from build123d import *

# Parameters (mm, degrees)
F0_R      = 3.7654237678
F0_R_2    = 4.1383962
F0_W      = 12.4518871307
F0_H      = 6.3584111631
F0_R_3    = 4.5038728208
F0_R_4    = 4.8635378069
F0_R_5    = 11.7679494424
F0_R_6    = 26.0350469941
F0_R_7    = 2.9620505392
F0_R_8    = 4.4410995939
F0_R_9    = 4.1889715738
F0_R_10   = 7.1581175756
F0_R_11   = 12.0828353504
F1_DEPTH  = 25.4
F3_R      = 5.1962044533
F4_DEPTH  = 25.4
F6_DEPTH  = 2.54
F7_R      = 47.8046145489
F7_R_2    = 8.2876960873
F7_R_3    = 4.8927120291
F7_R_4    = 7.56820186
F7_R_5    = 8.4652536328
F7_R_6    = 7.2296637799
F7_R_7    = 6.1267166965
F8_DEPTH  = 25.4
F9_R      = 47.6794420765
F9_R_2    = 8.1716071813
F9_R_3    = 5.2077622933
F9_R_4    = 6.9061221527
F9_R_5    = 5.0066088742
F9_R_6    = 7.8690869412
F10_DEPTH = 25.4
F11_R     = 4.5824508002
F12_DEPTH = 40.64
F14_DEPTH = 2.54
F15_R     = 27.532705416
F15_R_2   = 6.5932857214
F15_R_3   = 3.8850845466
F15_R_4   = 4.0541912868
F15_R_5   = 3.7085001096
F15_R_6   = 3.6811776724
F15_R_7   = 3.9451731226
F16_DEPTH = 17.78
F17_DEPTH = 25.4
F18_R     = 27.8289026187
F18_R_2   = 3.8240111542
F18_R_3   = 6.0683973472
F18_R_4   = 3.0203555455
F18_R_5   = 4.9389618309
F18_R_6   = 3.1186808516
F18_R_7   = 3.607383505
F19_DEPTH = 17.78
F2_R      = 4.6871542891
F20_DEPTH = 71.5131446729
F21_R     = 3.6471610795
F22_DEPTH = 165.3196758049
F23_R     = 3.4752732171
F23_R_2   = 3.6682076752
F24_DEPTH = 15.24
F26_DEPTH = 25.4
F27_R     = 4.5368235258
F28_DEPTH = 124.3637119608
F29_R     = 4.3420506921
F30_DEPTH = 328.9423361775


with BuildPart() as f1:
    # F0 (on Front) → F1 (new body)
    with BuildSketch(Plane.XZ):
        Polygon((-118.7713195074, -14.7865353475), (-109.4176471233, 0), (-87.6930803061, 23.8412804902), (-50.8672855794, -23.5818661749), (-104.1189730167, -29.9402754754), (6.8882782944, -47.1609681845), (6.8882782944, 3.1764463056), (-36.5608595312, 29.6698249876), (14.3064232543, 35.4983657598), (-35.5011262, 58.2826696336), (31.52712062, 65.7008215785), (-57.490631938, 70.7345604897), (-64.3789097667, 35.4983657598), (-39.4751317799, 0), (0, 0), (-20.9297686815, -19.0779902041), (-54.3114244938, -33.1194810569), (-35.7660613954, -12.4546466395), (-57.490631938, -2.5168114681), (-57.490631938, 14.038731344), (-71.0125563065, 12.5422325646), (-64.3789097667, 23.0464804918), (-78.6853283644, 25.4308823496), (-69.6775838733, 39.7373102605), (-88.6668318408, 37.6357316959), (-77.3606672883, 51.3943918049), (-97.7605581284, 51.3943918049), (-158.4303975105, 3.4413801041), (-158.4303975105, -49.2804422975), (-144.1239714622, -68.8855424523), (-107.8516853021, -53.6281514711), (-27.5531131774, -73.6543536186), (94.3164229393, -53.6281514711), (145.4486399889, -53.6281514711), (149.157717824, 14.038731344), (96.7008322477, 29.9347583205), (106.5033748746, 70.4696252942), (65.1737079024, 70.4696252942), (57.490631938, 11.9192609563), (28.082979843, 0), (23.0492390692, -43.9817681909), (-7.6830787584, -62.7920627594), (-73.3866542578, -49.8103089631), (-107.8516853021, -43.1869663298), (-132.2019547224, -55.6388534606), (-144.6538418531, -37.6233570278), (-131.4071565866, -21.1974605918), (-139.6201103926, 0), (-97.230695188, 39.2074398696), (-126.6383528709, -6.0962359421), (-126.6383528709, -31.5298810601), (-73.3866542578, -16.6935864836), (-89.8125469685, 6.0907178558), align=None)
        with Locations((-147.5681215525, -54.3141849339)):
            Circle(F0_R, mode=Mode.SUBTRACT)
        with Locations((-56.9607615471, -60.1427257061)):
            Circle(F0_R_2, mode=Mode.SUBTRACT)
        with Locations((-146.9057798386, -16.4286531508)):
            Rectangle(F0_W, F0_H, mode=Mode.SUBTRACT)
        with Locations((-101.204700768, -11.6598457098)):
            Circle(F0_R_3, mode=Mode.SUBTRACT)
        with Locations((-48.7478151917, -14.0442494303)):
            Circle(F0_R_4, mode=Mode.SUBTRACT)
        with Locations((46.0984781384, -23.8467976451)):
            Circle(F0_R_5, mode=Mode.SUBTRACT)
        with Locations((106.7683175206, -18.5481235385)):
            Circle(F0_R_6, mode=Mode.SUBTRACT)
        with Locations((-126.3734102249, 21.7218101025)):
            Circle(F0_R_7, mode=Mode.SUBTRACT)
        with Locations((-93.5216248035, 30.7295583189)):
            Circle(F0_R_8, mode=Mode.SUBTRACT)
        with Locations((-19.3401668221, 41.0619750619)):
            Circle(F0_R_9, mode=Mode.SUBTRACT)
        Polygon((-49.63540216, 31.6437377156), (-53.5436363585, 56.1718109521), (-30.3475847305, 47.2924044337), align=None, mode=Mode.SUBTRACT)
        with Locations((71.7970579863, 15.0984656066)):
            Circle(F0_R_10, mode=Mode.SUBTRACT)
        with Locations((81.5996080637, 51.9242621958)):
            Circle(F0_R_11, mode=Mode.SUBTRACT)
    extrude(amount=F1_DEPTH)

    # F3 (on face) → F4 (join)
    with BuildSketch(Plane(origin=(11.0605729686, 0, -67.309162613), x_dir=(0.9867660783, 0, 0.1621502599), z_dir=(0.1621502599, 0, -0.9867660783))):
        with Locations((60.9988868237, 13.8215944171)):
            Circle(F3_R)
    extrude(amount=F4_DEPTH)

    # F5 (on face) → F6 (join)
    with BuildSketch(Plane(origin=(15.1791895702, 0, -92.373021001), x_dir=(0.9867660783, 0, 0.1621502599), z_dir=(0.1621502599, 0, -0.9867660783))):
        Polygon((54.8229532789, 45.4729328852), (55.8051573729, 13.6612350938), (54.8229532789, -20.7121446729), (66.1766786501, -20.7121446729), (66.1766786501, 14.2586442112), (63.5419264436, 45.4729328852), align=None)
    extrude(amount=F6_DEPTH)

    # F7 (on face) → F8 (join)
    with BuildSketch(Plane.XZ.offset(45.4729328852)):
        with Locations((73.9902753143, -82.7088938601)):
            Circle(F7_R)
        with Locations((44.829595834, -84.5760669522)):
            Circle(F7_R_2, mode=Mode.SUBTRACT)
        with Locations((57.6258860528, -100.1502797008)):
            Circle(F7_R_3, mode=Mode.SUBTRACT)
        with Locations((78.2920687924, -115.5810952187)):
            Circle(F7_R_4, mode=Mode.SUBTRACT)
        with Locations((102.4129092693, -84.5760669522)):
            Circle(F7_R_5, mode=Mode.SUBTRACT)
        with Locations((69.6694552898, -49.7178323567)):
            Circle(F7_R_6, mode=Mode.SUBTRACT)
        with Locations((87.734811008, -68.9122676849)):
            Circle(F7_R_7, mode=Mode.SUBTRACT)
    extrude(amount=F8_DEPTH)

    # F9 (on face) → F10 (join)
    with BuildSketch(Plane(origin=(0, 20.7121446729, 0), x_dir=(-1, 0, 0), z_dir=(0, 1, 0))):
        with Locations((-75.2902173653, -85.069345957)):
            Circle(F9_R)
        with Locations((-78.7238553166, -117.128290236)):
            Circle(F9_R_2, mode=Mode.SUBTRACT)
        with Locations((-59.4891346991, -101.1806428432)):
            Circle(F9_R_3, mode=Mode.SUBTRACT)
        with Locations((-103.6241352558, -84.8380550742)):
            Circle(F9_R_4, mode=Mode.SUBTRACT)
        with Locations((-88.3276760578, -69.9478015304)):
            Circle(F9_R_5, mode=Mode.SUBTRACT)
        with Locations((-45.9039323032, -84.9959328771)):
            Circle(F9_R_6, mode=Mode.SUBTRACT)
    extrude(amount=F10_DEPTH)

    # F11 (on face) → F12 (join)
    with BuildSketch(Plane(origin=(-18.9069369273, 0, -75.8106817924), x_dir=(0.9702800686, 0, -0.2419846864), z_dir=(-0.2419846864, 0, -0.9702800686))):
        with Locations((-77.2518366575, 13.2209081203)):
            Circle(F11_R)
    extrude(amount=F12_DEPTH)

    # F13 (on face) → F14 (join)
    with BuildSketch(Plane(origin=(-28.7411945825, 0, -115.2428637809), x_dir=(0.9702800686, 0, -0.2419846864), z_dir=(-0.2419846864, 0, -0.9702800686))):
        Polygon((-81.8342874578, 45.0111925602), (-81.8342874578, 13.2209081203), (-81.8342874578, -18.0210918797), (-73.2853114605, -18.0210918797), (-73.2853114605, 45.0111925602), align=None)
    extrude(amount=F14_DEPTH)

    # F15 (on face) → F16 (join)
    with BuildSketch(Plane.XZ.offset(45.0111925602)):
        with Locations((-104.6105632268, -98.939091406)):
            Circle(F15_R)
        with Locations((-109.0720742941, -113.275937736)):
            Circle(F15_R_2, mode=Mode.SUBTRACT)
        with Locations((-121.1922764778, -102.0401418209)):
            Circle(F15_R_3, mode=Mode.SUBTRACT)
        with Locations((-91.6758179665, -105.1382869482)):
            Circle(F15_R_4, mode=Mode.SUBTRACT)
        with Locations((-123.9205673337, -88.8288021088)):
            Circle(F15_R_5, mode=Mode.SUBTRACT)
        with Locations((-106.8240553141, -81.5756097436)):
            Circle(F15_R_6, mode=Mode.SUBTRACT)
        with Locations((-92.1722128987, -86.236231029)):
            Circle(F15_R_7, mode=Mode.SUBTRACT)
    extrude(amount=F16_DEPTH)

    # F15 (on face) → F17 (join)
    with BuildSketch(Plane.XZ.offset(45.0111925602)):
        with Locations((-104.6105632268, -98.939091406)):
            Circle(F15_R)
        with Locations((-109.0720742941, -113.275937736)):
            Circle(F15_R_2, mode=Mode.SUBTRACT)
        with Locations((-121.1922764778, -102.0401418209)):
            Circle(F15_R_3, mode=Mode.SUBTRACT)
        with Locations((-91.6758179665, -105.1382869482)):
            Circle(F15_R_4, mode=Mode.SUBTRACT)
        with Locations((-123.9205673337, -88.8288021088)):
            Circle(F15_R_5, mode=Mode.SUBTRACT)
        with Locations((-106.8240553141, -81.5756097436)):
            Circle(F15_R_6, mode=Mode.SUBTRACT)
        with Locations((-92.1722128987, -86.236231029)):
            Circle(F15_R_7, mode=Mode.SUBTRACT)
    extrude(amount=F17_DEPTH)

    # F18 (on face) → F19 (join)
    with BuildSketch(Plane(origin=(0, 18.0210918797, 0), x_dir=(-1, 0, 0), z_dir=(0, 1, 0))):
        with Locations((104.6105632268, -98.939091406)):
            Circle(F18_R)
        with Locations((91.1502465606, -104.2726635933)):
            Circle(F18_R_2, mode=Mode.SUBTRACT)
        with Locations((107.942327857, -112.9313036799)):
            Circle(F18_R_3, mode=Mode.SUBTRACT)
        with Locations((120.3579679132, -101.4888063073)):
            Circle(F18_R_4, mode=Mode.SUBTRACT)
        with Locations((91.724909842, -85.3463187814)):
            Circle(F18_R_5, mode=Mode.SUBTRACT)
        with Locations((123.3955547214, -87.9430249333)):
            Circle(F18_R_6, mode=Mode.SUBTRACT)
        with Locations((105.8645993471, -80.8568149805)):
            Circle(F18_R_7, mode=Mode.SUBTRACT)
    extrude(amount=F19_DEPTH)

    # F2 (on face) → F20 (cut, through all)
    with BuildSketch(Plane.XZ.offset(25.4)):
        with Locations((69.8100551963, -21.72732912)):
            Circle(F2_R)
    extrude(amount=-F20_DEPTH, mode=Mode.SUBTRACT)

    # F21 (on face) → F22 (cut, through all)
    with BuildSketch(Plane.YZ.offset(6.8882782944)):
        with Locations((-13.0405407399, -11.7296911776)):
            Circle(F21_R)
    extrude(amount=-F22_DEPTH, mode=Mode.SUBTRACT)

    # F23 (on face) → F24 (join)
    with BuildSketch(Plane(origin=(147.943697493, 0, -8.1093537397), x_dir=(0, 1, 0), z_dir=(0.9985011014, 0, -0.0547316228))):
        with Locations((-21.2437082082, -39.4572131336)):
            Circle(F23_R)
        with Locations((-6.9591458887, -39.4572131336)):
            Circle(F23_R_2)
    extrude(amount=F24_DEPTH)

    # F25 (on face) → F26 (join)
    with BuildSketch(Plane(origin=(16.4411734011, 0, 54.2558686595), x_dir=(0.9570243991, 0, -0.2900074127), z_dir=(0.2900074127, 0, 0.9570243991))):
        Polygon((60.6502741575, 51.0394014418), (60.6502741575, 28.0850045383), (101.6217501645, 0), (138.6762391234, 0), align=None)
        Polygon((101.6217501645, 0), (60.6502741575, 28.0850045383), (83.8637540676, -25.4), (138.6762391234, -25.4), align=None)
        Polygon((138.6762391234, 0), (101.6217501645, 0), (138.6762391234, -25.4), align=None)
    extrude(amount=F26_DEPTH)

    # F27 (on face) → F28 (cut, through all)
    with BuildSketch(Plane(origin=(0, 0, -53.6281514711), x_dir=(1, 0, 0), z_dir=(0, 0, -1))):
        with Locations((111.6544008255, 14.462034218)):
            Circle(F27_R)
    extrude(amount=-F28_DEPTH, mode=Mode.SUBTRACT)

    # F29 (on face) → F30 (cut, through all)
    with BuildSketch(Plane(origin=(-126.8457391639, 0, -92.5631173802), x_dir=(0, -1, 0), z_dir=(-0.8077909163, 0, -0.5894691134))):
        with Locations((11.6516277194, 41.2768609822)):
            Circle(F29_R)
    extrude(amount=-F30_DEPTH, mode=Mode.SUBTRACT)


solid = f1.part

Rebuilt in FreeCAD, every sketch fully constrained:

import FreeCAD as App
import Part
import Sketcher

V = App.Vector
Q = App.Units.Quantity


def add_polygon(sketch, points):
    """Adds a closed chain of lines whose ends are joined by coincident constraints."""
    first, n = sketch.GeometryCount, len(points)
    for a, b in zip(points, points[1:] + points[:1]):
        sketch.addGeometry(Part.LineSegment(App.Vector(*a, 0), App.Vector(*b, 0)), False)
    for i in range(n):
        sketch.addConstraint(Sketcher.Constraint("Coincident", first + i, 2, first + (i + 1) % n, 1))

doc = App.newDocument("Part")
body = doc.addObject("PartDesign::Body", "Body")

# Sketch on XZ plane
sketch1 = body.newObject("Sketcher::SketchObject", "Sketch")
sketch1.AttachmentSupport = (doc.getObject("XZ_Plane"), [""])
sketch1.MapMode = "FlatFace"
add_polygon(sketch1, [(-118.8, -14.8), (-109.4, 0), (-87.7, 23.8), (-50.9, -23.6), (-104.1, -29.9), (6.9, -47.2), (6.9, 3.2), (-36.6, 29.7), (14.3, 35.5), (-35.5, 58.3), (31.5, 65.7), (-57.5, 70.7), (-64.4, 35.5), (-39.5, 0), (0, 0), (-20.9, -19.1), (-54.3, -33.1), (-35.8, -12.5), (-57.5, -2.5), (-57.5, 14), (-71, 12.5), (-64.4, 23), (-78.7, 25.4), (-69.7, 39.7), (-88.7, 37.6), (-77.4, 51.4), (-97.8, 51.4), (-158.4, 3.4), (-158.4, -49.3), (-144.1, -68.9), (-107.9, -53.6), (-27.6, -73.7), (94.3, -53.6), (145.4, -53.6), (149.2, 14), (96.7, 29.9), (106.5, 70.5), (65.2, 70.5), (57.5, 11.9), (28.1, 0), (23, -44), (-7.7, -62.8), (-73.4, -49.8), (-107.9, -43.2), (-132.2, -55.6), (-144.7, -37.6), (-131.4, -21.2), (-139.6, 0), (-97.2, 39.2), (-126.6, -6.1), (-126.6, -31.5), (-73.4, -16.7), (-89.8, 6.1)])  # lines 0-52
sketch1.addGeometry(Part.Circle(V(-147.6, -54.3, 0), V(0, 0, 1), 3.8), False)  # 53
sketch1.addGeometry(Part.Circle(V(-57, -60.1, 0), V(0, 0, 1), 4.1), False)  # 54
add_polygon(sketch1, [(-140.7, -19.6), (-153.1, -19.6), (-153.1, -13.2), (-140.7, -13.2)])  # lines 55-58
sketch1.addGeometry(Part.Circle(V(-101.2, -11.7, 0), V(0, 0, 1), 4.5), False)  # 59
sketch1.addGeometry(Part.Circle(V(-48.7, -14, 0), V(0, 0, 1), 4.9), False)  # 60
sketch1.addGeometry(Part.Circle(V(46.1, -23.8, 0), V(0, 0, 1), 11.8), False)  # 61
sketch1.addGeometry(Part.Circle(V(106.8, -18.5, 0), V(0, 0, 1), 26), False)  # 62
sketch1.addGeometry(Part.Circle(V(-126.4, 21.7, 0), V(0, 0, 1), 3), False)  # 63
sketch1.addGeometry(Part.Circle(V(-93.5, 30.7, 0), V(0, 0, 1), 4.4), False)  # 64
add_polygon(sketch1, [(-30.3, 47.3), (-49.6, 31.6), (-53.5, 56.2)])  # lines 65-67
sketch1.addGeometry(Part.Circle(V(-19.3, 41.1, 0), V(0, 0, 1), 4.2), False)  # 68
sketch1.addGeometry(Part.Circle(V(71.8, 15.1, 0), V(0, 0, 1), 7.2), False)  # 69
sketch1.addGeometry(Part.Circle(V(81.6, 51.9, 0), V(0, 0, 1), 12.1), False)  # 70
sketch1.addConstraint(Sketcher.Constraint("Vertical", 5))
sketch1.addConstraint(Sketcher.Constraint("Horizontal", 13))
sketch1.addConstraint(Sketcher.Constraint("Vertical", 18))
sketch1.addConstraint(Sketcher.Constraint("Horizontal", 25))
sketch1.addConstraint(Sketcher.Constraint("Vertical", 27))
sketch1.addConstraint(Sketcher.Constraint("Horizontal", 32))
sketch1.addConstraint(Sketcher.Constraint("Horizontal", 36))
sketch1.addConstraint(Sketcher.Constraint("Vertical", 49))
sketch1.addConstraint(Sketcher.Constraint("Horizontal", 55))
sketch1.addConstraint(Sketcher.Constraint("Vertical", 56))
sketch1.addConstraint(Sketcher.Constraint("Horizontal", 57))
sketch1.addConstraint(Sketcher.Constraint("Vertical", 58))
sketch1.addConstraint(Sketcher.Constraint("Coincident", 13, 2, -1, 1))
sketch1.addConstraint(Sketcher.Constraint("PointOnObject", 0, 2, -1))
sketch1.addConstraint(Sketcher.Constraint("PointOnObject", 38, 2, -1))
sketch1.addConstraint(Sketcher.Constraint("PointOnObject", 46, 2, -1))
sketch1.addConstraint(Sketcher.Constraint("Parallel", 8, 17))
sketch1.addConstraint(Sketcher.Constraint("Parallel", 9, 19))
sketch1.addConstraint(Sketcher.Constraint("Parallel", 19, 23))
sketch1.addConstraint(Sketcher.Constraint("Parallel", 15, 29))
sketch1.addConstraint(Sketcher.Constraint("Perpendicular", 51, 52))
sketch1.addConstraint(Sketcher.Constraint("Horizontal", 7, 2, 11, 2))
sketch1.addConstraint(Sketcher.Constraint("Horizontal", 29, 2, 31, 2))
sketch1.addConstraint(Sketcher.Constraint("Horizontal", 18, 2, 33, 2))
sketch1.addConstraint(Sketcher.Constraint("Vertical", 10, 2, 17, 2))
sketch1.addConstraint(Sketcher.Constraint("Vertical", 11, 2, 20, 2))
sketch1.addConstraint(Sketcher.Constraint("Vertical", 29, 2, 42, 2))
sketch1.addConstraint(Sketcher.Constraint("Vertical", 41, 2, 50, 2))
sketch1.addConstraint(Sketcher.Constraint("Equal", 65, 66))
sketch1.addConstraint(Sketcher.Constraint("Equal", 66, 67))
sketch1.addConstraint(Sketcher.Constraint("Diameter", 61, Q("23.535899 mm")))
sketch1.addConstraint(Sketcher.Constraint("Diameter", 63, Q("5.924101 mm")))
sketch1.addConstraint(Sketcher.Constraint("Diameter", 64, Q("8.882199 mm")))
sketch1.addConstraint(Sketcher.Constraint("Diameter", 70, Q("24.165671 mm")))
sketch1.addConstraint(Sketcher.Constraint("Diameter", 53, Q("7.530848 mm")))
sketch1.addConstraint(Sketcher.Constraint("Diameter", 54, Q("8.276792 mm")))
sketch1.addConstraint(Sketcher.Constraint("Diameter", 59, Q("9.007746 mm")))
sketch1.addConstraint(Sketcher.Constraint("Diameter", 60, Q("9.727076 mm")))
sketch1.addConstraint(Sketcher.Constraint("Diameter", 62, Q("52.070094 mm")))
sketch1.addConstraint(Sketcher.Constraint("Diameter", 68, Q("8.377943 mm")))
sketch1.addConstraint(Sketcher.Constraint("Diameter", 69, Q("14.316235 mm")))
sketch1.addConstraint(Sketcher.Constraint("DistanceY", -1, 1, 47, 2, Q("1.5436 in")))
sketch1.addConstraint(Sketcher.Constraint("Distance", 35, Q("41.703301 mm")))
sketch1.addConstraint(Sketcher.Constraint("DistanceX", 13, 1, 13, 2, Q("39.475132 mm")))
sketch1.addConstraint(Sketcher.Constraint("DistanceX", 25, 2, 25, 1, Q("20.399891 mm")))
sketch1.addConstraint(Sketcher.Constraint("DistanceY", 56, 1, 56, 2, Q("6.358411 mm")))
sketch1.addConstraint(Sketcher.Constraint("DistanceX", 59, 3, -1, 1, Q("101.204701 mm")))
sketch1.addConstraint(Sketcher.Constraint("Distance", 0, Q("17.496652 mm")))
sketch1.addConstraint(Sketcher.Constraint("Distance", 3, Q("53.62995 mm")))
sketch1.addConstraint(Sketcher.Constraint("Distance", 7, Q("51.200121 mm")))
sketch1.addConstraint(Sketcher.Constraint("Distance", 9, Q("67.437488 mm")))
sketch1.addConstraint(Sketcher.Constraint("Distance", 10, Q("89.159962 mm")))
sketch1.addConstraint(Sketcher.Constraint("Distance", 28, Q("24.270018 mm")))
sketch1.addConstraint(Sketcher.Constraint("Distance", 29, Q("39.350562 mm")))
sketch1.addConstraint(Sketcher.Constraint("Distance", 30, Q("82.758138 mm")))
sketch1.addConstraint(Sketcher.Constraint("Distance", 31, Q("123.503978 mm")))
sketch1.addConstraint(Sketcher.Constraint("Distance", 33, Q("67.768461 mm")))
sketch1.addConstraint(Sketcher.Constraint("Distance", 39, Q("44.268888 mm")))
sketch1.addConstraint(Sketcher.Constraint("Distance", 41, Q("66.973769 mm")))
sketch1.addConstraint(Sketcher.Constraint("Distance", 45, Q("21.101771 mm")))
sketch1.addConstraint(Sketcher.Constraint("Distance", 48, Q("54.011419 mm")))
sketch1.addConstraint(Sketcher.Constraint("DistanceX", 32, 1, 32, 2, Q("51.132217 mm")))
sketch1.addConstraint(Sketcher.Constraint("DistanceX", 36, 2, 36, 1, Q("41.329667 mm")))
sketch1.addConstraint(Sketcher.Constraint("DistanceX", 55, 2, 55, 1, Q("12.451887 mm")))
sketch1.addConstraint(Sketcher.Constraint("DistanceY", 5, 1, 5, 2, Q("50.337414 mm")))
sketch1.addConstraint(Sketcher.Constraint("DistanceY", 18, 1, 18, 2, Q("16.555543 mm")))
sketch1.addConstraint(Sketcher.Constraint("DistanceY", 27, 2, 27, 1, Q("52.721822 mm")))
sketch1.addConstraint(Sketcher.Constraint("DistanceY", 49, 2, 49, 1, Q("25.433645 mm")))
sketch1.addConstraint(Sketcher.Constraint("DistanceX", 53, 3, -1, 1, Q("147.568122 mm")))
sketch1.addConstraint(Sketcher.Constraint("DistanceX", 54, 3, -1, 1, Q("56.960762 mm")))
sketch1.addConstraint(Sketcher.Constraint("DistanceY", 60, 3, -1, 1, Q("14.044249 mm")))
sketch1.addConstraint(Sketcher.Constraint("DistanceX", -1, 1, 61, 3, Q("46.098478 mm")))
sketch1.addConstraint(Sketcher.Constraint("DistanceX", 63, 3, -1, 1, Q("126.37341 mm")))
sketch1.addConstraint(Sketcher.Constraint("DistanceY", -1, 1, 63, 3, Q("21.72181 mm")))
sketch1.addConstraint(Sketcher.Constraint("DistanceY", -1, 1, 64, 3, Q("30.729558 mm")))
sketch1.addConstraint(Sketcher.Constraint("DistanceX", -1, 1, 70, 3, Q("81.599608 mm")))
sketch1.addConstraint(Sketcher.Constraint("DistanceX", 1, 2, -1, 1, Q("87.69308 mm")))
sketch1.addConstraint(Sketcher.Constraint("DistanceY", -1, 1, 1, 2, Q("23.84128 mm")))
sketch1.addConstraint(Sketcher.Constraint("DistanceX", -1, 1, 4, 2, Q("6.888278 mm")))
sketch1.addConstraint(Sketcher.Constraint("DistanceY", 4, 2, -1, 1, Q("47.160968 mm")))
sketch1.addConstraint(Sketcher.Constraint("DistanceX", 6, 2, -1, 1, Q("36.56086 mm")))
sketch1.addConstraint(Sketcher.Constraint("DistanceY", -1, 1, 8, 2, Q("58.28267 mm")))
sketch1.addConstraint(Sketcher.Constraint("DistanceX", -1, 1, 9, 2, Q("31.527121 mm")))
sketch1.addConstraint(Sketcher.Constraint("DistanceY", -1, 1, 9, 2, Q("65.700822 mm")))
sketch1.addConstraint(Sketcher.Constraint("DistanceX", 10, 2, -1, 1, Q("57.490632 mm")))
sketch1.addConstraint(Sketcher.Constraint("DistanceX", 11, 2, -1, 1, Q("64.37891 mm")))
sketch1.addConstraint(Sketcher.Constraint("DistanceX", 14, 2, -1, 1, Q("20.929769 mm")))
sketch1.addConstraint(Sketcher.Constraint("DistanceY", 14, 2, -1, 1, Q("19.07799 mm")))
sketch1.addConstraint(Sketcher.Constraint("DistanceY", 15, 2, -1, 1, Q("33.119481 mm")))
sketch1.addConstraint(Sketcher.Constraint("DistanceX", 16, 2, -1, 1, Q("35.766061 mm")))
sketch1.addConstraint(Sketcher.Constraint("DistanceY", 17, 2, -1, 1, Q("2.516811 mm")))
sketch1.addConstraint(Sketcher.Constraint("DistanceY", -1, 1, 20, 2, Q("23.04648 mm")))
sketch1.addConstraint(Sketcher.Constraint("DistanceX", 21, 2, -1, 1, Q("78.685328 mm")))
sketch1.addConstraint(Sketcher.Constraint("DistanceY", -1, 1, 22, 2, Q("39.73731 mm")))
sketch1.addConstraint(Sketcher.Constraint("DistanceX", 23, 2, -1, 1, Q("88.666832 mm")))
sketch1.addConstraint(Sketcher.Constraint("DistanceY", -1, 1, 23, 2, Q("37.635732 mm")))
sketch1.addConstraint(Sketcher.Constraint("DistanceY", -1, 1, 24, 2, Q("51.394392 mm")))
sketch1.addConstraint(Sketcher.Constraint("DistanceX", 25, 2, -1, 1, Q("97.760558 mm")))
sketch1.addConstraint(Sketcher.Constraint("DistanceY", -1, 1, 26, 2, Q("3.44138 mm")))
sketch1.addConstraint(Sketcher.Constraint("DistanceX", 28, 2, -1, 1, Q("144.123971 mm")))
sketch1.addConstraint(Sketcher.Constraint("DistanceY", 29, 2, -1, 1, Q("53.628151 mm")))
sketch1.addConstraint(Sketcher.Constraint("DistanceX", -1, 1, 32, 2, Q("145.44864 mm")))
sketch1.addConstraint(Sketcher.Constraint("DistanceY", -1, 1, 34, 2, Q("29.934758 mm")))
sketch1.addConstraint(Sketcher.Constraint("DistanceX", -1, 1, 37, 2, Q("57.490632 mm")))
sketch1.addConstraint(Sketcher.Constraint("DistanceY", -1, 1, 37, 2, Q("11.919261 mm")))
sketch1.addConstraint(Sketcher.Constraint("DistanceX", -1, 1, 38, 2, Q("28.08298 mm")))
sketch1.addConstraint(Sketcher.Constraint("DistanceX", -1, 1, 39, 2, Q("23.049239 mm")))
sketch1.addConstraint(Sketcher.Constraint("DistanceX", 40, 2, -1, 1, Q("7.683079 mm")))
sketch1.addConstraint(Sketcher.Constraint("DistanceY", 41, 2, -1, 1, Q("49.810309 mm")))
sketch1.addConstraint(Sketcher.Constraint("DistanceX", 44, 2, -1, 1, Q("144.653842 mm")))
sketch1.addConstraint(Sketcher.Constraint("DistanceY", 45, 2, -1, 1, Q("21.197461 mm")))
sketch1.addConstraint(Sketcher.Constraint("DistanceX", 46, 2, -1, 1, Q("139.62011 mm")))
sketch1.addConstraint(Sketcher.Constraint("DistanceY", 49, 2, -1, 1, Q("31.529881 mm")))
sketch1.addConstraint(Sketcher.Constraint("DistanceX", 52, 2, -1, 1, Q("118.77132 mm")))
sketch1.addConstraint(Sketcher.Constraint("DistanceY", 55, 2, -1, 1, Q("19.607859 mm")))
sketch1.addConstraint(Sketcher.Constraint("DistanceY", -1, 1, 66, 2, Q("56.171811 mm")))
sketch1.addConstraint(Sketcher.Constraint("Distance", 1, Q("32.254666 mm")))
sketch1.addConstraint(Sketcher.Constraint("Distance", 2, Q("60.042435 mm")))
sketch1.addConstraint(Sketcher.Constraint("Distance", 4, Q("112.335044 mm")))
sketch1.addConstraint(Sketcher.Constraint("Distance", 6, Q("50.889357 mm")))
sketch1.addConstraint(Sketcher.Constraint("Distance", 8, Q("54.771493 mm")))
sketch1.addConstraint(Sketcher.Constraint("Distance", 15, Q("36.214616 mm")))
sketch1.addConstraint(Sketcher.Constraint("Distance", 19, Q("13.604483 mm")))
sketch1.addConstraint(Sketcher.Constraint("Distance", 21, Q("14.503758 mm")))
sketch1.addConstraint(Sketcher.Constraint("Distance", 34, Q("54.812485 mm")))
sketch1.addConstraint(Sketcher.Constraint("Distance", 37, Q("59.052306 mm")))
sketch1.addConstraint(Sketcher.Constraint("Distance", 40, Q("36.031966 mm")))
sketch1.addConstraint(Sketcher.Constraint("Distance", 42, Q("35.095684 mm")))
sketch1.addConstraint(Sketcher.Constraint("Distance", 43, Q("27.349317 mm")))
sketch1.addConstraint(Sketcher.Constraint("Distance", 44, Q("21.899945 mm")))
sketch1.addConstraint(Sketcher.Constraint("Distance", 46, Q("22.732904 mm")))
sketch1.addConstraint(Sketcher.Constraint("Distance", 47, Q("57.741544 mm")))
sketch1.addConstraint(Sketcher.Constraint("Distance", 50, Q("55.279825 mm")))
sketch1.addConstraint(Sketcher.Constraint("Distance", 51, Q("28.087977 mm")))
sketch1.addConstraint(Sketcher.Constraint("Distance", 65, Q("24.837485 mm")))
sketch1.addConstraint(Sketcher.Constraint("DistanceY", 53, 3, -1, 1, Q("54.314185 mm")))
sketch1.addConstraint(Sketcher.Constraint("DistanceY", 54, 3, -1, 1, Q("60.142726 mm")))
sketch1.addConstraint(Sketcher.Constraint("DistanceY", 59, 3, -1, 1, Q("11.659846 mm")))
sketch1.addConstraint(Sketcher.Constraint("DistanceX", 60, 3, -1, 1, Q("48.747815 mm")))
sketch1.addConstraint(Sketcher.Constraint("DistanceY", 61, 3, -1, 1, Q("23.846798 mm")))
sketch1.addConstraint(Sketcher.Constraint("DistanceX", -1, 1, 62, 3, Q("106.768318 mm")))
sketch1.addConstraint(Sketcher.Constraint("DistanceY", 62, 3, -1, 1, Q("18.548124 mm")))
sketch1.addConstraint(Sketcher.Constraint("DistanceX", 64, 3, -1, 1, Q("93.521625 mm")))
sketch1.addConstraint(Sketcher.Constraint("DistanceX", 68, 3, -1, 1, Q("19.340167 mm")))
sketch1.addConstraint(Sketcher.Constraint("DistanceY", -1, 1, 68, 3, Q("41.061975 mm")))
sketch1.addConstraint(Sketcher.Constraint("DistanceX", -1, 1, 69, 3, Q("71.797058 mm")))
sketch1.addConstraint(Sketcher.Constraint("DistanceY", -1, 1, 69, 3, Q("15.098466 mm")))
sketch1.addConstraint(Sketcher.Constraint("DistanceY", -1, 1, 70, 3, Q("51.924262 mm")))
sketch1.addConstraint(Sketcher.Constraint("DistanceX", 2, 2, -1, 1, Q("50.867286 mm")))
sketch1.addConstraint(Sketcher.Constraint("DistanceX", 55, 2, -1, 1, Q("153.131723 mm")))
sketch1.addConstraint(Sketcher.Constraint("DistanceX", 65, 2, -1, 1, Q("49.635402 mm")))
sketch1.addConstraint(Sketcher.Constraint("DistanceY", -1, 1, 65, 2, Q("31.643738 mm")))
pad1 = body.newObject("PartDesign::Pad", "Pad")
pad1.Profile = sketch1
pad1.Length = Q("1 in")

# Sketch on an angled plane
sketch2 = body.newObject("Sketcher::SketchObject", "Sketch001")
sketch2.Placement = App.Placement(V(11.060573, 0, -67.309163), App.Rotation(V(0.986766078, 0, 0.16215026), V(0, -1, 0), V(0.16215026, 0, -0.986766078), "ZXY"))
sketch2.addGeometry(Part.Circle(V(61, 14, 0), V(0, 0, 1), 5), False)
sketch2.addConstraint(Sketcher.Constraint("Diameter", 0, Q("10.392409 mm")))
sketch2.addConstraint(Sketcher.Constraint("DistanceX", -1, 1, 0, 3, Q("60.998887 mm")))
sketch2.addConstraint(Sketcher.Constraint("DistanceY", -1, 1, 0, 3, Q("13.821594 mm")))
pad2 = body.newObject("PartDesign::Pad", "Pad001")
pad2.Profile = sketch2
pad2.Length = Q("1 in")

# Sketch on an angled plane
sketch3 = body.newObject("Sketcher::SketchObject", "Sketch002")
sketch3.Placement = App.Placement(V(15.17919, 0, -92.373021), App.Rotation(V(0.986766078, 0, 0.16215026), V(0, -1, 0), V(0.16215026, 0, -0.986766078), "ZXY"))
add_polygon(sketch3, [(55, 45), (56, 14), (55, -21), (66, -21), (66, 14), (64, 45)])  # lines 0-5
sketch3.addConstraint(Sketcher.Constraint("Horizontal", 2))
sketch3.addConstraint(Sketcher.Constraint("Vertical", 3))
sketch3.addConstraint(Sketcher.Constraint("Horizontal", 5))
sketch3.addConstraint(Sketcher.Constraint("Vertical", 1, 2, 5, 2))
sketch3.addConstraint(Sketcher.Constraint("DistanceY", 3, 1, 3, 2, Q("34.970789 mm")))
sketch3.addConstraint(Sketcher.Constraint("Distance", 1, Q("34.38741 mm")))
sketch3.addConstraint(Sketcher.Constraint("Distance", 4, Q("31.325289 mm")))
sketch3.addConstraint(Sketcher.Constraint("DistanceX", 2, 1, 2, 2, Q("11.353725 mm")))
sketch3.addConstraint(Sketcher.Constraint("DistanceX", 5, 2, 5, 1, Q("8.718973 mm")))
sketch3.addConstraint(Sketcher.Constraint("DistanceX", -1, 1, 2, 2, Q("66.176679 mm")))
sketch3.addConstraint(Sketcher.Constraint("DistanceY", 1, 2, 0, 2, Q("34.37338 mm")))
sketch3.addConstraint(Sketcher.Constraint("DistanceY", -1, 1, 0, 2, Q("13.661235 mm")))
pad3 = body.newObject("PartDesign::Pad", "Pad002")
pad3.Profile = sketch3
pad3.Length = Q("0.1 in")

# Sketch on XZ plane
sketch4 = body.newObject("Sketcher::SketchObject", "Sketch003")
sketch4.AttachmentSupport = (doc.getObject("XZ_Plane"), [""])
sketch4.MapMode = "FlatFace"
sketch4.AttachmentOffset = App.Placement(V(0, 0, 45.472933), App.Rotation())
sketch4.addGeometry(Part.Circle(V(74, -82.7, 0), V(0, 0, 1), 47.8), False)
sketch4.addGeometry(Part.Circle(V(44.8, -84.6, 0), V(0, 0, 1), 8.3), False)
sketch4.addGeometry(Part.Circle(V(57.6, -100.2, 0), V(0, 0, 1), 4.9), False)
sketch4.addGeometry(Part.Circle(V(78.3, -115.6, 0), V(0, 0, 1), 7.6), False)
sketch4.addGeometry(Part.Circle(V(102.4, -84.6, 0), V(0, 0, 1), 8.5), False)
sketch4.addGeometry(Part.Circle(V(69.7, -49.7, 0), V(0, 0, 1), 7.2), False)
sketch4.addGeometry(Part.Circle(V(87.7, -68.9, 0), V(0, 0, 1), 6.1), False)
sketch4.addConstraint(Sketcher.Constraint("Horizontal", 1, 3, 4, 3))
sketch4.addConstraint(Sketcher.Constraint("Diameter", 0, Q("95.609229 mm")))
sketch4.addConstraint(Sketcher.Constraint("Diameter", 1, Q("16.575392 mm")))
sketch4.addConstraint(Sketcher.Constraint("Diameter", 2, Q("9.785424 mm")))
sketch4.addConstraint(Sketcher.Constraint("Diameter", 3, Q("15.136404 mm")))
sketch4.addConstraint(Sketcher.Constraint("Diameter", 4, Q("16.930507 mm")))
sketch4.addConstraint(Sketcher.Constraint("Diameter", 5, Q("14.459328 mm")))
sketch4.addConstraint(Sketcher.Constraint("Diameter", 6, Q("12.253433 mm")))
sketch4.addConstraint(Sketcher.Constraint("DistanceY", 3, 3, 0, 3, Q("32.872201 mm")))
sketch4.addConstraint(Sketcher.Constraint("DistanceX", 6, 3, 4, 3, Q("14.678098 mm")))
sketch4.addConstraint(Sketcher.Constraint("DistanceY", 4, 3, 6, 3, Q("15.663799 mm")))
sketch4.addConstraint(Sketcher.Constraint("DistanceY", 2, 3, -1, 1, Q("100.15028 mm")))
sketch4.addConstraint(Sketcher.Constraint("DistanceX", -1, 1, 3, 3, Q("78.292069 mm")))
sketch4.addConstraint(Sketcher.Constraint("DistanceX", -1, 1, 4, 3, Q("102.412909 mm")))
sketch4.addConstraint(Sketcher.Constraint("DistanceX", 1, 3, 0, 3, Q("29.160679 mm")))
sketch4.addConstraint(Sketcher.Constraint("DistanceX", 1, 3, 2, 3, Q("12.79629 mm")))
sketch4.addConstraint(Sketcher.Constraint("DistanceY", 3, 3, 1, 3, Q("31.005028 mm")))
sketch4.addConstraint(Sketcher.Constraint("DistanceX", 5, 3, 0, 3, Q("4.32082 mm")))
sketch4.addConstraint(Sketcher.Constraint("DistanceY", 0, 3, 5, 3, Q("32.991062 mm")))
sketch4.addConstraint(Sketcher.Constraint("DistanceX", -1, 1, 0, 3, Q("73.990275 mm")))
sketch4.addConstraint(Sketcher.Constraint("DistanceY", 0, 3, -1, 1, Q("82.708894 mm")))
pad4 = body.newObject("PartDesign::Pad", "Pad003")
pad4.Profile = sketch4
pad4.Length = Q("1 in")

# Sketch on XZ plane
sketch5 = body.newObject("Sketcher::SketchObject", "Sketch004")
sketch5.AttachmentSupport = (doc.getObject("XZ_Plane"), [""])
sketch5.MapMode = "FlatFace"
sketch5.AttachmentOffset = App.Placement(V(0, 0, -20.712145), App.Rotation())
sketch5.addGeometry(Part.Circle(V(75, -85, 0), V(0, 0, 1), 48), False)
sketch5.addGeometry(Part.Circle(V(79, -117, 0), V(0, 0, 1), 8), False)
sketch5.addGeometry(Part.Circle(V(59, -101, 0), V(0, 0, 1), 5), False)
sketch5.addGeometry(Part.Circle(V(104, -85, 0), V(0, 0, 1), 7), False)
sketch5.addGeometry(Part.Circle(V(88, -70, 0), V(0, 0, 1), 5), False)
sketch5.addGeometry(Part.Circle(V(46, -85, 0), V(0, 0, 1), 8), False)
sketch5.addConstraint(Sketcher.Constraint("Diameter", 0, Q("95.358884 mm")))
sketch5.addConstraint(Sketcher.Constraint("Diameter", 1, Q("16.343214 mm")))
sketch5.addConstraint(Sketcher.Constraint("Diameter", 2, Q("10.415525 mm")))
sketch5.addConstraint(Sketcher.Constraint("Diameter", 3, Q("13.812244 mm")))
sketch5.addConstraint(Sketcher.Constraint("Diameter", 4, Q("10.013218 mm")))
sketch5.addConstraint(Sketcher.Constraint("Diameter", 5, Q("15.738174 mm")))
sketch5.addConstraint(Sketcher.Constraint("DistanceY", 4, 3, -1, 1, Q("69.947802 mm")))
sketch5.addConstraint(Sketcher.Constraint("DistanceX", 2, 3, 3, 3, Q("44.135001 mm")))
sketch5.addConstraint(Sketcher.Constraint("DistanceY", 1, 3, -1, 1, Q("117.12829 mm")))
sketch5.addConstraint(Sketcher.Constraint("DistanceX", 2, 3, 1, 3, Q("19.234721 mm")))
sketch5.addConstraint(Sketcher.Constraint("DistanceY", 0, 3, 3, 3, Q("0.231291 mm")))
sketch5.addConstraint(Sketcher.Constraint("DistanceX", 0, 3, 4, 3, Q("13.037459 mm")))
sketch5.addConstraint(Sketcher.Constraint("DistanceX", 4, 3, 3, 3, Q("15.296459 mm")))
sketch5.addConstraint(Sketcher.Constraint("DistanceY", 2, 3, 4, 3, Q("31.232841 mm")))
sketch5.addConstraint(Sketcher.Constraint("DistanceY", 2, 3, 5, 3, Q("16.18471 mm")))
sketch5.addConstraint(Sketcher.Constraint("DistanceX", -1, 1, 0, 3, Q("75.290217 mm")))
sketch5.addConstraint(Sketcher.Constraint("DistanceY", 0, 3, -1, 1, Q("85.069346 mm")))
sketch5.addConstraint(Sketcher.Constraint("DistanceX", -1, 1, 5, 3, Q("45.903932 mm")))
pad5 = body.newObject("PartDesign::Pad", "Pad004")
pad5.Profile = sketch5
pad5.Length = Q("1 in")
pad5.Reversed = True

# Sketch on an angled plane
sketch6 = body.newObject("Sketcher::SketchObject", "Sketch005")
sketch6.Placement = App.Placement(V(-18.906937, 0, -75.810682), App.Rotation(V(0.970280069, 0, -0.241984686), V(0, -1.000000001, 0), V(-0.241984686, 0, -0.970280069), "ZXY"))
sketch6.addGeometry(Part.Circle(V(-77.3, 13.2, 0), V(0, 0, 1), 4.6), False)
sketch6.addConstraint(Sketcher.Constraint("Diameter", 0, Q("9.164902 mm")))
sketch6.addConstraint(Sketcher.Constraint("DistanceY", -1, 1, 0, 3, Q("13.220908 mm")))
sketch6.addConstraint(Sketcher.Constraint("DistanceX", 0, 3, -1, 1, Q("77.251837 mm")))
pad6 = body.newObject("PartDesign::Pad", "Pad005")
pad6.Profile = sketch6
pad6.Length = Q("1.6 in")

# Sketch on an angled plane
sketch7 = body.newObject("Sketcher::SketchObject", "Sketch006")
sketch7.Placement = App.Placement(V(-28.741195, 0, -115.242864), App.Rotation(V(0.970280069, 0, -0.241984686), V(0, -1.000000001, 0), V(-0.241984686, 0, -0.970280069), "ZXY"))
add_polygon(sketch7, [(-82, 45), (-82, -18), (-73, -18), (-73, 45)])  # lines 0-3
sketch7.addConstraint(Sketcher.Constraint("Vertical", 0))
sketch7.addConstraint(Sketcher.Constraint("Horizontal", 1))
sketch7.addConstraint(Sketcher.Constraint("Vertical", 2))
sketch7.addConstraint(Sketcher.Constraint("Horizontal", 3))
sketch7.addConstraint(Sketcher.Constraint("DistanceX", 1, 1, 1, 2, Q("8.548976 mm")))
sketch7.addConstraint(Sketcher.Constraint("DistanceY", 0, 2, 0, 1, Q("63.032285 mm")))
sketch7.addConstraint(Sketcher.Constraint("DistanceY", 0, 2, -1, 1, Q("18.021092 mm")))
sketch7.addConstraint(Sketcher.Constraint("DistanceX", 1, 2, -1, 1, Q("73.285312 mm")))
pad7 = body.newObject("PartDesign::Pad", "Pad006")
pad7.Profile = sketch7
pad7.Length = Q("0.1 in")

# Sketch on XZ plane
sketch8 = body.newObject("Sketcher::SketchObject", "Sketch007")
sketch8.AttachmentSupport = (doc.getObject("XZ_Plane"), [""])
sketch8.MapMode = "FlatFace"
sketch8.AttachmentOffset = App.Placement(V(0, 0, 45.011193), App.Rotation())
sketch8.addGeometry(Part.Circle(V(-104.6, -98.9, 0), V(0, 0, 1), 27.5), False)
sketch8.addGeometry(Part.Circle(V(-109.1, -113.3, 0), V(0, 0, 1), 6.6), False)
sketch8.addGeometry(Part.Circle(V(-121.2, -102, 0), V(0, 0, 1), 3.9), False)
sketch8.addGeometry(Part.Circle(V(-91.7, -105.1, 0), V(0, 0, 1), 4.1), False)
sketch8.addGeometry(Part.Circle(V(-123.9, -88.8, 0), V(0, 0, 1), 3.7), False)
sketch8.addGeometry(Part.Circle(V(-106.8, -81.6, 0), V(0, 0, 1), 3.7), False)
sketch8.addGeometry(Part.Circle(V(-92.2, -86.2, 0), V(0, 0, 1), 3.9), False)
sketch8.addConstraint(Sketcher.Constraint("Diameter", 4, Q("7.417 mm")))
sketch8.addConstraint(Sketcher.Constraint("Diameter", 0, Q("55.065411 mm")))
sketch8.addConstraint(Sketcher.Constraint("Diameter", 1, Q("13.186571 mm")))
sketch8.addConstraint(Sketcher.Constraint("Diameter", 2, Q("7.770169 mm")))
sketch8.addConstraint(Sketcher.Constraint("Diameter", 3, Q("8.108383 mm")))
sketch8.addConstraint(Sketcher.Constraint("Diameter", 5, Q("7.362355 mm")))
sketch8.addConstraint(Sketcher.Constraint("Diameter", 6, Q("7.890346 mm")))
sketch8.addConstraint(Sketcher.Constraint("DistanceY", 0, 3, -1, 1, Q("98.939091 mm")))
sketch8.addConstraint(Sketcher.Constraint("DistanceY", 2, 3, -1, 1, Q("102.040142 mm")))
sketch8.addConstraint(Sketcher.Constraint("DistanceY", 5, 3, -1, 1, Q("81.57561 mm")))
sketch8.addConstraint(Sketcher.Constraint("DistanceY", 6, 3, -1, 1, Q("86.236231 mm")))
sketch8.addConstraint(Sketcher.Constraint("DistanceX", 1, 3, 0, 3, Q("4.461511 mm")))
sketch8.addConstraint(Sketcher.Constraint("DistanceY", 1, 3, 3, 3, Q("8.137651 mm")))
sketch8.addConstraint(Sketcher.Constraint("DistanceX", 2, 3, 3, 3, Q("29.516459 mm")))
sketch8.addConstraint(Sketcher.Constraint("DistanceX", 4, 3, 2, 3, Q("2.728291 mm")))
sketch8.addConstraint(Sketcher.Constraint("DistanceY", 2, 3, 4, 3, Q("13.21134 mm")))
sketch8.addConstraint(Sketcher.Constraint("DistanceX", 2, 3, 5, 3, Q("14.368221 mm")))
sketch8.addConstraint(Sketcher.Constraint("DistanceX", 1, 3, 5, 3, Q("2.248019 mm")))
sketch8.addConstraint(Sketcher.Constraint("DistanceX", 0, 3, 6, 3, Q("12.43835 mm")))
sketch8.addConstraint(Sketcher.Constraint("DistanceX", 0, 3, -1, 1, Q("104.610563 mm")))
sketch8.addConstraint(Sketcher.Constraint("DistanceY", 1, 3, -1, 1, Q("113.275938 mm")))
pad8 = body.newObject("PartDesign::Pad", "Pad007")
pad8.Profile = sketch8
pad8.Length = Q("0.7 in")

# Sketch on XZ plane
sketch9 = body.newObject("Sketcher::SketchObject", "Sketch008")
sketch9.AttachmentSupport = (doc.getObject("XZ_Plane"), [""])
sketch9.MapMode = "FlatFace"
sketch9.AttachmentOffset = App.Placement(V(0, 0, 45.011193), App.Rotation())
sketch9.addGeometry(Part.Circle(V(-104.6, -98.9, 0), V(0, 0, 1), 27.5), False)
sketch9.addGeometry(Part.Circle(V(-109.1, -113.3, 0), V(0, 0, 1), 6.6), False)
sketch9.addGeometry(Part.Circle(V(-121.2, -102, 0), V(0, 0, 1), 3.9), False)
sketch9.addGeometry(Part.Circle(V(-91.7, -105.1, 0), V(0, 0, 1), 4.1), False)
sketch9.addGeometry(Part.Circle(V(-123.9, -88.8, 0), V(0, 0, 1), 3.7), False)
sketch9.addGeometry(Part.Circle(V(-106.8, -81.6, 0), V(0, 0, 1), 3.7), False)
sketch9.addGeometry(Part.Circle(V(-92.2, -86.2, 0), V(0, 0, 1), 3.9), False)
sketch9.addConstraint(Sketcher.Constraint("Diameter", 4, Q("7.417 mm")))
sketch9.addConstraint(Sketcher.Constraint("Diameter", 0, Q("55.065411 mm")))
sketch9.addConstraint(Sketcher.Constraint("Diameter", 1, Q("13.186571 mm")))
sketch9.addConstraint(Sketcher.Constraint("Diameter", 2, Q("7.770169 mm")))
sketch9.addConstraint(Sketcher.Constraint("Diameter", 3, Q("8.108383 mm")))
sketch9.addConstraint(Sketcher.Constraint("Diameter", 5, Q("7.362355 mm")))
sketch9.addConstraint(Sketcher.Constraint("Diameter", 6, Q("7.890346 mm")))
sketch9.addConstraint(Sketcher.Constraint("DistanceY", 0, 3, -1, 1, Q("98.939091 mm")))
sketch9.addConstraint(Sketcher.Constraint("DistanceY", 2, 3, -1, 1, Q("102.040142 mm")))
sketch9.addConstraint(Sketcher.Constraint("DistanceY", 5, 3, -1, 1, Q("81.57561 mm")))
sketch9.addConstraint(Sketcher.Constraint("DistanceY", 6, 3, -1, 1, Q("86.236231 mm")))
sketch9.addConstraint(Sketcher.Constraint("DistanceX", 1, 3, 0, 3, Q("4.461511 mm")))
sketch9.addConstraint(Sketcher.Constraint("DistanceY", 1, 3, 3, 3, Q("8.137651 mm")))
sketch9.addConstraint(Sketcher.Constraint("DistanceX", 2, 3, 3, 3, Q("29.516459 mm")))
sketch9.addConstraint(Sketcher.Constraint("DistanceX", 4, 3, 2, 3, Q("2.728291 mm")))
sketch9.addConstraint(Sketcher.Constraint("DistanceY", 2, 3, 4, 3, Q("13.21134 mm")))
sketch9.addConstraint(Sketcher.Constraint("DistanceX", 2, 3, 5, 3, Q("14.368221 mm")))
sketch9.addConstraint(Sketcher.Constraint("DistanceX", 1, 3, 5, 3, Q("2.248019 mm")))
sketch9.addConstraint(Sketcher.Constraint("DistanceX", 0, 3, 6, 3, Q("12.43835 mm")))
sketch9.addConstraint(Sketcher.Constraint("DistanceX", 0, 3, -1, 1, Q("104.610563 mm")))
sketch9.addConstraint(Sketcher.Constraint("DistanceY", 1, 3, -1, 1, Q("113.275938 mm")))
pad9 = body.newObject("PartDesign::Pad", "Pad008")
pad9.Profile = sketch9
pad9.Length = Q("1 in")

# Sketch on XZ plane
sketch10 = body.newObject("Sketcher::SketchObject", "Sketch009")
sketch10.AttachmentSupport = (doc.getObject("XZ_Plane"), [""])
sketch10.MapMode = "FlatFace"
sketch10.AttachmentOffset = App.Placement(V(0, 0, -18.021092), App.Rotation())
sketch10.addGeometry(Part.Circle(V(-104.6, -98.9, 0), V(0, 0, 1), 27.8), False)
sketch10.addGeometry(Part.Circle(V(-91.2, -104.3, 0), V(0, 0, 1), 3.8), False)
sketch10.addGeometry(Part.Circle(V(-107.9, -112.9, 0), V(0, 0, 1), 6.1), False)
sketch10.addGeometry(Part.Circle(V(-120.4, -101.5, 0), V(0, 0, 1), 3), False)
sketch10.addGeometry(Part.Circle(V(-91.7, -85.3, 0), V(0, 0, 1), 4.9), False)
sketch10.addGeometry(Part.Circle(V(-105.9, -80.9, 0), V(0, 0, 1), 3.6), False)
sketch10.addGeometry(Part.Circle(V(-123.4, -87.9, 0), V(0, 0, 1), 3.1), False)
sketch10.addConstraint(Sketcher.Constraint("Diameter", 3, Q("6.040711 mm")))
sketch10.addConstraint(Sketcher.Constraint("Diameter", 6, Q("6.237362 mm")))
sketch10.addConstraint(Sketcher.Constraint("Diameter", 0, Q("55.657805 mm")))
sketch10.addConstraint(Sketcher.Constraint("Diameter", 1, Q("7.648022 mm")))
sketch10.addConstraint(Sketcher.Constraint("Diameter", 2, Q("12.136795 mm")))
sketch10.addConstraint(Sketcher.Constraint("Diameter", 4, Q("9.877924 mm")))
sketch10.addConstraint(Sketcher.Constraint("Diameter", 5, Q("7.214767 mm")))
sketch10.addConstraint(Sketcher.Constraint("DistanceX", 5, 3, -1, 1, Q("105.864599 mm")))
sketch10.addConstraint(Sketcher.Constraint("DistanceY", 0, 3, -1, 1, Q("98.939091 mm")))
sketch10.addConstraint(Sketcher.Constraint("DistanceX", 4, 3, -1, 1, Q("91.72491 mm")))
sketch10.addConstraint(Sketcher.Constraint("DistanceY", 4, 3, -1, 1, Q("85.346319 mm")))
sketch10.addConstraint(Sketcher.Constraint("DistanceX", 2, 3, 1, 3, Q("16.792081 mm")))
sketch10.addConstraint(Sketcher.Constraint("DistanceY", 2, 3, 1, 3, Q("8.65864 mm")))
sketch10.addConstraint(Sketcher.Constraint("DistanceX", 3, 3, 2, 3, Q("12.41564 mm")))
sketch10.addConstraint(Sketcher.Constraint("DistanceX", 2, 3, 4, 3, Q("16.217418 mm")))
sketch10.addConstraint(Sketcher.Constraint("DistanceY", 3, 3, 5, 3, Q("20.631991 mm")))
sketch10.addConstraint(Sketcher.Constraint("DistanceY", 1, 3, 5, 3, Q("23.415849 mm")))
sketch10.addConstraint(Sketcher.Constraint("DistanceY", 3, 3, 6, 3, Q("13.545781 mm")))
sketch10.addConstraint(Sketcher.Constraint("DistanceX", 6, 3, 0, 3, Q("18.784991 mm")))
sketch10.addConstraint(Sketcher.Constraint("DistanceX", 0, 3, -1, 1, Q("104.610563 mm")))
sketch10.addConstraint(Sketcher.Constraint("DistanceY", 1, 3, -1, 1, Q("104.272664 mm")))
pad10 = body.newObject("PartDesign::Pad", "Pad009")
pad10.Profile = sketch10
pad10.Length = Q("0.7 in")
pad10.Reversed = True

# Sketch on XZ plane
sketch11 = body.newObject("Sketcher::SketchObject", "Sketch010")
sketch11.AttachmentSupport = (doc.getObject("XZ_Plane"), [""])
sketch11.MapMode = "FlatFace"
sketch11.AttachmentOffset = App.Placement(V(0, 0, 1 * 25.4), App.Rotation())
sketch11.addGeometry(Part.Circle(V(69.8, -21.7, 0), V(0, 0, 1), 4.7), False)
sketch11.addConstraint(Sketcher.Constraint("Diameter", 0, Q("9.374309 mm")))
sketch11.addConstraint(Sketcher.Constraint("DistanceY", 0, 3, -1, 1, Q("21.727329 mm")))
sketch11.addConstraint(Sketcher.Constraint("DistanceX", -1, 1, 0, 3, Q("69.810055 mm")))
pocket1 = body.newObject("PartDesign::Pocket", "Pocket")
pocket1.Profile = sketch11
pocket1.Type = "ThroughAll"

# Sketch on YZ plane
sketch12 = body.newObject("Sketcher::SketchObject", "Sketch011")
sketch12.AttachmentSupport = (doc.getObject("YZ_Plane"), [""])
sketch12.MapMode = "FlatFace"
sketch12.AttachmentOffset = App.Placement(V(0, 0, 6.888278), App.Rotation())
sketch12.addGeometry(Part.Circle(V(-13, -11.7, 0), V(0, 0, 1), 3.6), False)
sketch12.addConstraint(Sketcher.Constraint("Diameter", 0, Q("7.294322 mm")))
sketch12.addConstraint(Sketcher.Constraint("DistanceX", 0, 3, -1, 1, Q("13.040541 mm")))
sketch12.addConstraint(Sketcher.Constraint("DistanceY", 0, 3, -1, 1, Q("11.729691 mm")))
pocket2 = body.newObject("PartDesign::Pocket", "Pocket001")
pocket2.Profile = sketch12
pocket2.Type = "ThroughAll"

# Sketch on an angled plane
sketch13 = body.newObject("Sketcher::SketchObject", "Sketch012")
sketch13.Placement = App.Placement(V(147.943697, 0, -8.109354), App.Rotation(V(0, 1, 0), V(0.054731623, 0, 0.998501101), V(0.998501101, 0, -0.054731623), "ZXY"))
sketch13.addGeometry(Part.Circle(V(-21.2, -39.5, 0), V(0, 0, 1), 3.5), False)
sketch13.addGeometry(Part.Circle(V(-7, -39.5, 0), V(0, 0, 1), 3.7), False)
sketch13.addConstraint(Sketcher.Constraint("Horizontal", 0, 3, 1, 3))
sketch13.addConstraint(Sketcher.Constraint("Diameter", 0, Q("6.950546 mm")))
sketch13.addConstraint(Sketcher.Constraint("Diameter", 1, Q("7.336415 mm")))
sketch13.addConstraint(Sketcher.Constraint("DistanceX", 0, 3, -1, 1, Q("21.243708 mm")))
sketch13.addConstraint(Sketcher.Constraint("DistanceY", 0, 3, -1, 1, Q("39.457213 mm")))
sketch13.addConstraint(Sketcher.Constraint("DistanceX", 1, 3, -1, 1, Q("6.959146 mm")))
pad11 = body.newObject("PartDesign::Pad", "Pad010")
pad11.Profile = sketch13
pad11.Length = Q("0.6 in")

# Sketch on an angled plane
sketch14 = body.newObject("Sketcher::SketchObject", "Sketch013")
sketch14.Placement = App.Placement(V(16.441173, 0, 54.255869), App.Rotation(V(0.957024399, 0, -0.290007413), V(0, 1, 0), V(0.290007413, 0, 0.957024399), "ZXY"))
add_polygon(sketch14, [(61, 51), (61, 28), (84, -25), (139, -25), (139, 0)])  # lines 0-4
sketch14.addConstraint(Sketcher.Constraint("Vertical", 0))
sketch14.addConstraint(Sketcher.Constraint("Horizontal", 2))
sketch14.addConstraint(Sketcher.Constraint("Vertical", 3))
sketch14.addConstraint(Sketcher.Constraint("PointOnObject", 3, 2, -1))
sketch14.addConstraint(Sketcher.Constraint("DistanceY", 3, 1, 3, 2, Q("1 in")))
sketch14.addConstraint(Sketcher.Constraint("DistanceY", -1, 1, 4, 2, Q("51.039401 mm")))
sketch14.addConstraint(Sketcher.Constraint("Distance", 1, Q("58.305329 mm")))
sketch14.addConstraint(Sketcher.Constraint("DistanceX", 2, 1, 2, 2, Q("54.812485 mm")))
sketch14.addConstraint(Sketcher.Constraint("DistanceY", 0, 2, 0, 1, Q("22.954397 mm")))
sketch14.addConstraint(Sketcher.Constraint("DistanceX", -1, 1, 2, 2, Q("138.676239 mm")))
pad12 = body.newObject("PartDesign::Pad", "Pad011")
pad12.Profile = sketch14
pad12.Length = Q("1 in")

# Sketch on XY plane
sketch15 = body.newObject("Sketcher::SketchObject", "Sketch014")
sketch15.AttachmentSupport = (doc.getObject("XY_Plane"), [""])
sketch15.MapMode = "FlatFace"
sketch15.AttachmentOffset = App.Placement(V(0, 0, -53.628151), App.Rotation())
sketch15.addGeometry(Part.Circle(V(111.7, -14.5, 0), V(0, 0, 1), 4.5), False)
sketch15.addConstraint(Sketcher.Constraint("Diameter", 0, Q("9.073647 mm")))
sketch15.addConstraint(Sketcher.Constraint("DistanceX", -1, 1, 0, 3, Q("111.654401 mm")))
sketch15.addConstraint(Sketcher.Constraint("DistanceY", 0, 3, -1, 1, Q("14.462034 mm")))
pocket3 = body.newObject("PartDesign::Pocket", "Pocket002")
pocket3.Profile = sketch15
pocket3.Type = "ThroughAll"
pocket3.Reversed = True

# Sketch on an angled plane
sketch16 = body.newObject("Sketcher::SketchObject", "Sketch015")
sketch16.Placement = App.Placement(V(-126.845739, 0, -92.563117), App.Rotation(V(0, -1, 0), V(-0.589469113, 0, 0.807790916), V(-0.807790916, 0, -0.589469113), "ZXY"))
sketch16.addGeometry(Part.Circle(V(11.7, 41.3, 0), V(0, 0, 1), 4.3), False)
sketch16.addConstraint(Sketcher.Constraint("Diameter", 0, Q("8.684101 mm")))
sketch16.addConstraint(Sketcher.Constraint("DistanceY", -1, 1, 0, 3, Q("41.276861 mm")))
sketch16.addConstraint(Sketcher.Constraint("DistanceX", -1, 1, 0, 3, Q("11.651628 mm")))
pocket4 = body.newObject("PartDesign::Pocket", "Pocket003")
pocket4.Profile = sketch16
pocket4.Type = "ThroughAll"

doc.recompute()
